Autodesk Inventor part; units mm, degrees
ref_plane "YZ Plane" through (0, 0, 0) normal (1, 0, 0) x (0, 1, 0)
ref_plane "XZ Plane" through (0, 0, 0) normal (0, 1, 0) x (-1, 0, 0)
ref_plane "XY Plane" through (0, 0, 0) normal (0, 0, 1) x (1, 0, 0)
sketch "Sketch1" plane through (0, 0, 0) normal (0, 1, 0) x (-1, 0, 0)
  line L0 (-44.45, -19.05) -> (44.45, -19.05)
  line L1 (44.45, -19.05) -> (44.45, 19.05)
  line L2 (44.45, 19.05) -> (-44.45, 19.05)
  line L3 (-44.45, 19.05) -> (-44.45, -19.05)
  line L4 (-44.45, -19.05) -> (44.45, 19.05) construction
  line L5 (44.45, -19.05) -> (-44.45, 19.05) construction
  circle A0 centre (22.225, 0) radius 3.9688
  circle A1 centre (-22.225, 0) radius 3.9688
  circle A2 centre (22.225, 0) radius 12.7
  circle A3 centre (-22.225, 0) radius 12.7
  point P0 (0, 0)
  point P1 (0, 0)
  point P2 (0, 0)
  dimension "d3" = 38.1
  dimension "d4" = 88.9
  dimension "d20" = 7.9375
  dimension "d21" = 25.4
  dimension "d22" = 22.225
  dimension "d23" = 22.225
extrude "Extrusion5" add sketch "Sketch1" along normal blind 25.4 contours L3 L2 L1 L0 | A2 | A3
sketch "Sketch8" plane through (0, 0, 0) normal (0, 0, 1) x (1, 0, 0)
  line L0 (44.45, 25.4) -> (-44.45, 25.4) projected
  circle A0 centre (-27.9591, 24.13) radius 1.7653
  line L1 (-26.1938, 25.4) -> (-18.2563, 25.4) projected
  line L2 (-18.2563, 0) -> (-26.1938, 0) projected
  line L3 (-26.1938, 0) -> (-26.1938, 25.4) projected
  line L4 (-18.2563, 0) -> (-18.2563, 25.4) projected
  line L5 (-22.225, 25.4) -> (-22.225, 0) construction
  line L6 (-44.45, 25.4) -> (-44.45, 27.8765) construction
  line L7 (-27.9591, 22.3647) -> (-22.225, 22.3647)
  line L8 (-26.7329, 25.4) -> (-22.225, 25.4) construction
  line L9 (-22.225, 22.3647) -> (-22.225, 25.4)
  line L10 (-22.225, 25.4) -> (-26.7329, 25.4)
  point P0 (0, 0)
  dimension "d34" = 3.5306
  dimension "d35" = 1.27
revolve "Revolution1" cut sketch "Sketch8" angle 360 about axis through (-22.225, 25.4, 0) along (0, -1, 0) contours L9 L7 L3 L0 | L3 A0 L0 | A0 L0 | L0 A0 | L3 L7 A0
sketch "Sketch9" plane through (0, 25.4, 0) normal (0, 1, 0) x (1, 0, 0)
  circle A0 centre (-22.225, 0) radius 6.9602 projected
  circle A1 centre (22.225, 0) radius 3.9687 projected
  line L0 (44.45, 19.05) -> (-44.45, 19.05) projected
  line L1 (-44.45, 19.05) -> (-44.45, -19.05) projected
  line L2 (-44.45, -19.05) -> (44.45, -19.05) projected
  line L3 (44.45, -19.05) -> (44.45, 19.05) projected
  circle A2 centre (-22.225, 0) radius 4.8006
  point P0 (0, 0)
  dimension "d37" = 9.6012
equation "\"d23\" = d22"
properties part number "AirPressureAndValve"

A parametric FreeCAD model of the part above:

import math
import FreeCAD as App
import Part
import Sketcher
from FreeCAD import Vector
Q = App.Units.Quantity

doc = App.newDocument("Part")
body = doc.addObject("PartDesign::Body", "Body")

# Sketch on XZ plane
sketch1 = body.newObject("Sketcher::SketchObject", "Sketch")
sketch1.AttachmentSupport = (doc.getObject("XZ_Plane"), [""])
sketch1.MapMode = "FlatFace"
sketch1.addGeometry([
    Part.LineSegment(Vector(44.45, 19.05, 0), Vector(44.45, -19.05, 0)),  # 0
    Part.LineSegment(Vector(44.45, -19.05, 0), Vector(-44.45, -19.05, 0)),  # 1
    Part.LineSegment(Vector(-44.45, -19.05, 0), Vector(-44.45, 19.05, 0)),  # 2
    Part.LineSegment(Vector(-44.45, 19.05, 0), Vector(44.45, 19.05, 0)),  # 3
    Part.Circle(Vector(22.225, 0, 0), Vector(0, 0, 1), 3.9688),  # 4
    Part.Circle(Vector(-22.225, 0, 0), Vector(0, 0, 1), 3.9688),  # 5
], False)
sketch1.addConstraint([
    Sketcher.Constraint("Coincident", 0, 2, 1, 1),
    Sketcher.Constraint("Coincident", 1, 2, 2, 1),
    Sketcher.Constraint("Coincident", 2, 2, 3, 1),
    Sketcher.Constraint("Coincident", 3, 2, 0, 1),
    Sketcher.Constraint("Vertical", 0),
    Sketcher.Constraint("Horizontal", 1),
    Sketcher.Constraint("Vertical", 2),
    Sketcher.Constraint("Horizontal", 3),
    Sketcher.Constraint("Equal", 4, 5),
    Sketcher.Constraint("Symmetric", 4, 3, 5, 3, -1, 1),
    Sketcher.Constraint("Symmetric", 0, 2, 2, 2, -1, 1),
    Sketcher.Constraint("PointOnObject", 4, 3, -1),
    Sketcher.Constraint("Diameter", 4, Q("0.3125 in")),
    Sketcher.Constraint("DistanceX", 1, 2, 1, 1, Q("3.5 in")),
    Sketcher.Constraint("DistanceY", 0, 2, 0, 1, Q("1.5 in")),
    Sketcher.Constraint("DistanceX", -1, 1, 4, 3, Q("0.875 in")),
])
pad1 = body.newObject("PartDesign::Pad", "Pad")
pad1.Profile = sketch1
pad1.Length = Q("1 in")
pad1.Reversed = True

# Sketch on XY plane
sketch2 = body.newObject("Sketcher::SketchObject", "Sketch001")
sketch2.AttachmentSupport = (doc.getObject("XY_Plane"), [""])
sketch2.MapMode = "FlatFace"
sketch2.addGeometry([
    Part.LineSegment(Vector(-22.225, 22.3647, 0), Vector(-22.225, 25.4, 0)),
    Part.LineSegment(Vector(-22.225, 25.4, 0), Vector(-26.7329, 25.4, 0)),
    Part.ArcOfCircle(Part.Circle(Vector(-27.9591, 24.13, 0), Vector(0, 0, 1), 1.7653), math.radians(46.005247), math.radians(270)),
    Part.LineSegment(Vector(-27.9591, 22.3647, 0), Vector(-22.225, 22.3647, 0)),
], False)
sketch2.addGeometry(Part.LineSegment(Vector(-22.225, 25.4, 0), Vector(-22.225, 22.3647, 0)), True)  # axis
sketch2.addConstraint([
    Sketcher.Constraint("Coincident", 0, 2, 1, 1),
    Sketcher.Constraint("Coincident", 1, 2, 2, 1),
    Sketcher.Constraint("Tangent", 2, 2, 3, 1),
    Sketcher.Constraint("Coincident", 3, 2, 0, 1),
    Sketcher.Constraint("Vertical", 0),
    Sketcher.Constraint("Horizontal", 1),
    Sketcher.Constraint("Horizontal", 3),
    Sketcher.Constraint("Vertical", 4),
    Sketcher.Constraint("Coincident", 4, 1, 0, 2),
    Sketcher.Constraint("Horizontal", 2, 2, 4, 2),
    Sketcher.Constraint("Radius", 2, Q("0.0695 in")),
    Sketcher.Constraint("DistanceY", 2, 3, 0, 2, Q("0.05 in")),
    Sketcher.Constraint("DistanceY", -1, 1, 0, 2, Q("1 in")),
    Sketcher.Constraint("DistanceX", 0, 2, -1, 1, Q("0.875 in")),
    Sketcher.Constraint("DistanceX", 1, 2, 1, 1, 4.508),
])
groove = body.newObject("PartDesign::Groove", "Groove")
groove.Profile = sketch2
groove.ReferenceAxis = (sketch2, ["Axis0"])
groove.Angle = 360

doc.recompute()
